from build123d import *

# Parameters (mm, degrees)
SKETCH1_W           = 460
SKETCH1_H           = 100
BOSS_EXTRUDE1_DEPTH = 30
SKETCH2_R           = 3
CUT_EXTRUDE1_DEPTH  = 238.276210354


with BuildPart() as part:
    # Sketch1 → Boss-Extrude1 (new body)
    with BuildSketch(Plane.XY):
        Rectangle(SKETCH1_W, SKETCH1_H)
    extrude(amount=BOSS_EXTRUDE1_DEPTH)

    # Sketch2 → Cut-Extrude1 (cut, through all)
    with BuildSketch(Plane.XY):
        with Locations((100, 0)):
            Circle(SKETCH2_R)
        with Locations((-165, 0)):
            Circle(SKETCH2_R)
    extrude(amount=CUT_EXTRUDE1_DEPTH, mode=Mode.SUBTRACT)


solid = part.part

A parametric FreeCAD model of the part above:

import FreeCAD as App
import Part
import Sketcher
from FreeCAD import Vector
Q = App.Units.Quantity


def add_polygon(sketch, points):
    """Adds a closed chain of lines whose ends are joined by coincident constraints."""
    first, n = sketch.GeometryCount, len(points)
    for a, b in zip(points, points[1:] + points[:1]):
        sketch.addGeometry(Part.LineSegment(App.Vector(*a, 0), App.Vector(*b, 0)), False)
    for i in range(n):
        sketch.addConstraint(Sketcher.Constraint("Coincident", first + i, 2, first + (i + 1) % n, 1))

doc = App.newDocument("Part")
body = doc.addObject("PartDesign::Body", "Body")

# Sketch on XY plane
sketch1 = doc.addObject("Sketcher::SketchObject", "Sketch")
body.addObject(sketch1)
sketch1.AttachmentSupport = (doc.XY_Plane, [""])
sketch1.MapMode = "FlatFace"
add_polygon(sketch1, [(-230, 50), (-230, -50), (230, -50), (230, 50)])  # lines 0-3
sketch1.addConstraint([
    Sketcher.Constraint("Vertical", 0),
    Sketcher.Constraint("Horizontal", 1),
    Sketcher.Constraint("Vertical", 2),
    Sketcher.Constraint("Horizontal", 3),
    Sketcher.Constraint("Symmetric", 0, 2, 2, 2, -1, 1),
    Sketcher.Constraint("DistanceX", 1, 1, 1, 2, Q("460 mm")),
    Sketcher.Constraint("DistanceY", 0, 2, 0, 1, Q("100 mm")),
])
pad1 = doc.addObject("PartDesign::Pad", "Pad")
body.addObject(pad1)
pad1.Profile = sketch1
pad1.Length = 30

# Sketch on XY plane
sketch2 = doc.addObject("Sketcher::SketchObject", "Sketch001")
body.addObject(sketch2)
sketch2.AttachmentSupport = (doc.XY_Plane, [""])
sketch2.MapMode = "FlatFace"
sketch2.addGeometry([
    Part.Circle(Vector(100, 0, 0), Vector(0, 0, 1), 3),
    Part.Circle(Vector(-165, 0, 0), Vector(0, 0, 1), 3),
], False)
sketch2.addConstraint([
    Sketcher.Constraint("Equal", 0, 1),
    Sketcher.Constraint("PointOnObject", 0, 3, -1),
    Sketcher.Constraint("PointOnObject", 1, 3, -1),
    Sketcher.Constraint("Diameter", 0, Q("6 mm")),
    Sketcher.Constraint("DistanceX", -1, 1, 0, 3, Q("100 mm")),
    Sketcher.Constraint("DistanceX", 1, 3, -1, 1, Q("165 mm")),
])
pocket1 = doc.addObject("PartDesign::Pocket", "Pocket")
body.addObject(pocket1)
pocket1.Profile = sketch2
pocket1.Type = "ThroughAll"
pocket1.Reversed = True

doc.recompute()
